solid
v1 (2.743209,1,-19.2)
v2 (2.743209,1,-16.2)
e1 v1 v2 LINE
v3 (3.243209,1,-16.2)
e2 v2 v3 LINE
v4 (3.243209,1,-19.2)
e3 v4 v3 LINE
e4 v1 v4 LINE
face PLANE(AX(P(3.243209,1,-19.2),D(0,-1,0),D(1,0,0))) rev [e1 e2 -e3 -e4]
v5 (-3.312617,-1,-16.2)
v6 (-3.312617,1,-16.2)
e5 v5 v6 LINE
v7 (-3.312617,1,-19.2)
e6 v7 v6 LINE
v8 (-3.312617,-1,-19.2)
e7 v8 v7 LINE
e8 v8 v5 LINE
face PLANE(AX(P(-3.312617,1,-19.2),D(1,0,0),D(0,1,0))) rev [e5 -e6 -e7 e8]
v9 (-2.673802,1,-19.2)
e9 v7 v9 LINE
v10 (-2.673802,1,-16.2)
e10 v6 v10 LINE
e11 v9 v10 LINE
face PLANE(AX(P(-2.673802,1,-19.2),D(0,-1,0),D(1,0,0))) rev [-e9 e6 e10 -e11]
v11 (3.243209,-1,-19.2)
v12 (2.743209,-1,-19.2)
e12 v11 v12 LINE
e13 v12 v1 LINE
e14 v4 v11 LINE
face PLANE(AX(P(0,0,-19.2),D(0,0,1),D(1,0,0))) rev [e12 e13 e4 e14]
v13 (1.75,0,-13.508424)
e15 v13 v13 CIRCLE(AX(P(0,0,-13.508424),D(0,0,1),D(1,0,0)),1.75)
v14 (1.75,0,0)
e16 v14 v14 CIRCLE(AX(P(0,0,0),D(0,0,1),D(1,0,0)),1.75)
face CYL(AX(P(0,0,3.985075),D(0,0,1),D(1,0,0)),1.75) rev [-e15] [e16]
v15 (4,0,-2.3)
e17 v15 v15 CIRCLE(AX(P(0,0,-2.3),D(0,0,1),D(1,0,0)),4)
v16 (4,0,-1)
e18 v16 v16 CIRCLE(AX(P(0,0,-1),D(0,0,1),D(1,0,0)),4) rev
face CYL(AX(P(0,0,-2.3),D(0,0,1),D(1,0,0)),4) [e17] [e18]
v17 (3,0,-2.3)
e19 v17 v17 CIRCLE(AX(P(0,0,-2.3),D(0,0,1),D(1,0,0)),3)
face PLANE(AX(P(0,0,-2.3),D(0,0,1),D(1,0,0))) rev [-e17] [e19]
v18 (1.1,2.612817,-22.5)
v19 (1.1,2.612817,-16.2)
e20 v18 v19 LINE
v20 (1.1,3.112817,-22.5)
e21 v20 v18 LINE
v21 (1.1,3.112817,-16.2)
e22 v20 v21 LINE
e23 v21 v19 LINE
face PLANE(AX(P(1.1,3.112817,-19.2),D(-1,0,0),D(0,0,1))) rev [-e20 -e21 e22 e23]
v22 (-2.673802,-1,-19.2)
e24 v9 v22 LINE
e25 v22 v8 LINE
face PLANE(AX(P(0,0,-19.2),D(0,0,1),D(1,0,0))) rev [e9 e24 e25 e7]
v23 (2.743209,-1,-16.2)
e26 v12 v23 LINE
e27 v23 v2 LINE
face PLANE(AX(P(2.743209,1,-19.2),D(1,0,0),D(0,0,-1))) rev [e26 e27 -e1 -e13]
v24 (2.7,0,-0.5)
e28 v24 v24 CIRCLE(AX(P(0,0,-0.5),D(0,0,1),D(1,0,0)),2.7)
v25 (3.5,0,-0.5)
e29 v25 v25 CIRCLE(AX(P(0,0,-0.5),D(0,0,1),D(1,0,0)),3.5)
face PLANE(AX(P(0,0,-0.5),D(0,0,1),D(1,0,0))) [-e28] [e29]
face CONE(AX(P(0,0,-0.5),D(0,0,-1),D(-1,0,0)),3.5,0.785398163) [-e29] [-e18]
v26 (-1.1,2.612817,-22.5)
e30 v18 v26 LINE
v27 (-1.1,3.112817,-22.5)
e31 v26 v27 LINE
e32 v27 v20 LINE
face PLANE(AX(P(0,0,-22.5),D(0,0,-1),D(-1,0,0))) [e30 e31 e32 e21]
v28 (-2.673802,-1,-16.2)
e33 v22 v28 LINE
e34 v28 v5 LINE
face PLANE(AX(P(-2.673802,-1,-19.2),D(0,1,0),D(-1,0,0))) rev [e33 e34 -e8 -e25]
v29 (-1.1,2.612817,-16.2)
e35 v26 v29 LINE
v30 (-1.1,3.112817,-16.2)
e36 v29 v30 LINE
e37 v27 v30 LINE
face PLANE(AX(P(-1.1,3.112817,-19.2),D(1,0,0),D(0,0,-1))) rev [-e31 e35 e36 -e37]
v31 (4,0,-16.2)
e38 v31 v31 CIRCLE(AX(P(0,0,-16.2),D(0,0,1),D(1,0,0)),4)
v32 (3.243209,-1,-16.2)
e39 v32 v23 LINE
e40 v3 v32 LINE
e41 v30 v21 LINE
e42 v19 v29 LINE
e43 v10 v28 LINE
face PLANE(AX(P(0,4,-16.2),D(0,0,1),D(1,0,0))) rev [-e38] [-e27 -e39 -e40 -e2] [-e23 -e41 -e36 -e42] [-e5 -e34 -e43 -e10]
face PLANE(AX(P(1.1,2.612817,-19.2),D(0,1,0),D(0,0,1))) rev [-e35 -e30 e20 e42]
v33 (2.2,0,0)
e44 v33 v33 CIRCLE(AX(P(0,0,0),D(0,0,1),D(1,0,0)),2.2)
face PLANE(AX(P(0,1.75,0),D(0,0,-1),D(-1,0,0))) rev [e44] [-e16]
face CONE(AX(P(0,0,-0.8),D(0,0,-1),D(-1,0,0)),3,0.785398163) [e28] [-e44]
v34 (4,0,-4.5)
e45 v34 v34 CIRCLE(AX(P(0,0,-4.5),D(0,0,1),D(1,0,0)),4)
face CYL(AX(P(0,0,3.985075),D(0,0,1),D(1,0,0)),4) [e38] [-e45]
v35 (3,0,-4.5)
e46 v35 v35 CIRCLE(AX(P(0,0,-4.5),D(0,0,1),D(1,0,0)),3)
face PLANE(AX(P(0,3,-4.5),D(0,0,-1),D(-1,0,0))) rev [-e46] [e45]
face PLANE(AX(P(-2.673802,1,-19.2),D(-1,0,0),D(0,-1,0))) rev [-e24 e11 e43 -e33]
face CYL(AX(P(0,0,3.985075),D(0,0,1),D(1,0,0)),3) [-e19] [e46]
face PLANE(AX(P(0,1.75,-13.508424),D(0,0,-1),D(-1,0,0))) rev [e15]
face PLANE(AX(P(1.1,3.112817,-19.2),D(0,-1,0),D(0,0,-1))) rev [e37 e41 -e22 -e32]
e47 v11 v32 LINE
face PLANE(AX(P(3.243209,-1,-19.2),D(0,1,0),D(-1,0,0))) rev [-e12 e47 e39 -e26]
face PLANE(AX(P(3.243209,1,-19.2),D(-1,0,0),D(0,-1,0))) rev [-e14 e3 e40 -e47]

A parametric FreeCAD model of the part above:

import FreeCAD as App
import Part
import Sketcher
from FreeCAD import Vector
Q = App.Units.Quantity


def edges_at(feature, points):
    """Names of the edges that pass closest to the given points."""
    edges = feature.Shape.Edges
    near = lambda p: min(range(len(edges)), key=lambda i: edges[i].distToShape(Part.Vertex(*p))[0])
    return sorted({f"Edge{near(p) + 1}" for p in points})

doc = App.newDocument("Part")
body = doc.addObject("PartDesign::Body", "Body")

sketch1 = body.newObject("Sketcher::SketchObject", "Sketch")
sketch1.AttachmentSupport = (doc.getObject("YZ_Plane"), [""])
sketch1.MapMode = "FlatFace"
sketch1.addGeometry([
    Part.LineSegment(Vector(2.2, 0, 0), Vector(1.75, 0, 0)),
    Part.LineSegment(Vector(1.75, 0, 0), Vector(1.75, -13.51, 0)),
    Part.LineSegment(Vector(1.75, -13.51, 0), Vector(0, -13.51, 0)),
    Part.LineSegment(Vector(0, -13.51, 0), Vector(0, -16.2, 0)),
    Part.LineSegment(Vector(0, -16.2, 0), Vector(4, -16.2, 0)),
    Part.LineSegment(Vector(4, -16.2, 0), Vector(4, -4.5, 0)),
    Part.LineSegment(Vector(4, -4.5, 0), Vector(3, -4.5, 0)),
    Part.LineSegment(Vector(3, -4.5, 0), Vector(3, -0.8, 0)),
    Part.LineSegment(Vector(3, -0.8, 0), Vector(2.2, 0, 0)),
], False)
sketch1.addConstraint([
    Sketcher.Constraint("Coincident", 0, 2, 1, 1),
    Sketcher.Constraint("Coincident", 1, 2, 2, 1),
    Sketcher.Constraint("Coincident", 2, 2, 3, 1),
    Sketcher.Constraint("Coincident", 3, 2, 4, 1),
    Sketcher.Constraint("Coincident", 4, 2, 5, 1),
    Sketcher.Constraint("Coincident", 5, 2, 6, 1),
    Sketcher.Constraint("Coincident", 6, 2, 7, 1),
    Sketcher.Constraint("Coincident", 7, 2, 8, 1),
    Sketcher.Constraint("Coincident", 8, 2, 0, 1),
    Sketcher.Constraint("Horizontal", 0),
    Sketcher.Constraint("Vertical", 1),
    Sketcher.Constraint("Horizontal", 2),
    Sketcher.Constraint("Vertical", 3),
    Sketcher.Constraint("Horizontal", 4),
    Sketcher.Constraint("Vertical", 5),
    Sketcher.Constraint("Horizontal", 6),
    Sketcher.Constraint("Vertical", 7),
    Sketcher.Constraint("PointOnObject", 0, 2, -1),
    Sketcher.Constraint("PointOnObject", 2, 2, -2),
    Sketcher.Constraint("DistanceX", 4, 1, 4, 2, Q("4 mm")),
    Sketcher.Constraint("DistanceX", 6, 2, 6, 1, Q("1 mm")),
    Sketcher.Constraint("Angle", 8, Q("135 deg")),
    Sketcher.Constraint("DistanceY", 5, 1, 5, 2, Q("11.7 mm")),
    Sketcher.Constraint("DistanceY", 7, 1, 7, 2, Q("3.7 mm")),
    Sketcher.Constraint("DistanceX", 0, 2, 0, 1, Q("0.45 mm")),
    Sketcher.Constraint("DistanceX", 2, 2, 2, 1, Q("1.75 mm")),
    Sketcher.Constraint("DistanceY", 1, 2, 1, 1, Q("13.508424 mm")),
])
revolution = body.newObject("PartDesign::Revolution", "Revolution")
revolution.Profile = sketch1
revolution.ReferenceAxis = (sketch1, ["V_Axis"])
revolution.Angle = 360

sketch2 = body.newObject("Sketcher::SketchObject", "Sketch001")
sketch2.AttachmentSupport = (doc.getObject("XY_Plane"), [""])
sketch2.MapMode = "FlatFace"
sketch2.AttachmentOffset = App.Placement(Vector(0, 0, -2.3), App.Rotation())
sketch2.addGeometry([
    Part.Circle(Vector(0, 0, 0), Vector(0, 0, 1), 4),
    Part.Circle(Vector(0, 0, 0), Vector(0, 0, 1), 2.6),
], False)
sketch2.addConstraint([
    Sketcher.Constraint("Coincident", 0, 3, -1, 1),
    Sketcher.Constraint("Coincident", 1, 3, -1, 1),
    Sketcher.Constraint("Diameter", 0, Q("8 mm")),
    Sketcher.Constraint("Diameter", 1, Q("5.2 mm")),
])
pad1 = body.newObject("PartDesign::Pad", "Pad")
pad1.Profile = sketch2
pad1.Length = 1.8
doc.recompute()

chamfer = body.newObject("PartDesign::Chamfer", "Chamfer")
chamfer.Base = (pad1, edges_at(pad1, [(-4, 0, -0.5)]))
chamfer.Size = 0.5

sketch3 = body.newObject("Sketcher::SketchObject", "Sketch002")
sketch3.AttachmentSupport = (doc.getObject("XY_Plane"), [""])
sketch3.MapMode = "FlatFace"
sketch3.AttachmentOffset = App.Placement(Vector(0, 0, -16.2), App.Rotation())
sketch3.addGeometry([
    Part.LineSegment(Vector(3.2, 1, 0), Vector(3.2, -1, 0)),
    Part.LineSegment(Vector(3.2, -1, 0), Vector(2.7, -1, 0)),
    Part.LineSegment(Vector(2.7, -1, 0), Vector(2.7, 1, 0)),
    Part.LineSegment(Vector(2.7, 1, 0), Vector(3.2, 1, 0)),
    Part.LineSegment(Vector(1.1, 3.1, 0), Vector(1.1, 2.6, 0)),
    Part.LineSegment(Vector(1.1, 2.6, 0), Vector(-1.1, 2.6, 0)),
    Part.LineSegment(Vector(-1.1, 2.6, 0), Vector(-1.1, 3.1, 0)),
    Part.LineSegment(Vector(-1.1, 3.1, 0), Vector(1.1, 3.1, 0)),
    Part.LineSegment(Vector(-2.7, 1, 0), Vector(-2.7, -1, 0)),
    Part.LineSegment(Vector(-2.7, -1, 0), Vector(-3.3, -1, 0)),
    Part.LineSegment(Vector(-3.3, -1, 0), Vector(-3.3, 1, 0)),
    Part.LineSegment(Vector(-3.3, 1, 0), Vector(-2.7, 1, 0)),
], False)
sketch3.addConstraint([
    Sketcher.Constraint("Coincident", 0, 2, 1, 1),
    Sketcher.Constraint("Coincident", 1, 2, 2, 1),
    Sketcher.Constraint("Coincident", 2, 2, 3, 1),
    Sketcher.Constraint("Coincident", 3, 2, 0, 1),
    Sketcher.Constraint("Coincident", 4, 2, 5, 1),
    Sketcher.Constraint("Coincident", 5, 2, 6, 1),
    Sketcher.Constraint("Coincident", 6, 2, 7, 1),
    Sketcher.Constraint("Coincident", 7, 2, 4, 1),
    Sketcher.Constraint("Coincident", 8, 2, 9, 1),
    Sketcher.Constraint("Coincident", 9, 2, 10, 1),
    Sketcher.Constraint("Coincident", 10, 2, 11, 1),
    Sketcher.Constraint("Coincident", 11, 2, 8, 1),
    Sketcher.Constraint("Vertical", 0),
    Sketcher.Constraint("Horizontal", 1),
    Sketcher.Constraint("Vertical", 2),
    Sketcher.Constraint("Horizontal", 3),
    Sketcher.Constraint("Vertical", 4),
    Sketcher.Constraint("Horizontal", 5),
    Sketcher.Constraint("Vertical", 6),
    Sketcher.Constraint("Horizontal", 7),
    Sketcher.Constraint("Vertical", 8),
    Sketcher.Constraint("Horizontal", 9),
    Sketcher.Constraint("Vertical", 10),
    Sketcher.Constraint("Horizontal", 11),
    Sketcher.Constraint("Horizontal", 1, 2, 8, 2),
    Sketcher.Constraint("Horizontal", 3, 2, 10, 2),
    Sketcher.Constraint("Equal", 3, 4),
    Sketcher.Constraint("DistanceY", 0, 2, 0, 1, Q("2 mm")),
    Sketcher.Constraint("DistanceX", 1, 2, 1, 1, Q("0.5 mm")),
    Sketcher.Constraint("DistanceX", 5, 2, 5, 1, Q("2.2 mm")),
    Sketcher.Constraint("DistanceY", 0, 2, -1, 1, Q("1 mm")),
    Sketcher.Constraint("DistanceX", -1, 1, 4, 2, Q("1.1 mm")),
    Sketcher.Constraint("DistanceX", 8, 2, -1, 1, Q("2.673802 mm")),
    Sketcher.Constraint("DistanceX", 9, 2, 9, 1, Q("0.638815 mm")),
    Sketcher.Constraint("DistanceX", -1, 1, 0, 2, Q("3.243209 mm")),
    Sketcher.Constraint("DistanceY", -1, 1, 4, 2, Q("2.612817 mm")),
])
pad2 = body.newObject("PartDesign::Pad", "Pad001")
pad2.Profile = sketch3
pad2.Length = 3
pad2.Reversed = True

sketch4 = body.newObject("Sketcher::SketchObject", "Sketch003")
sketch4.AttachmentSupport = (doc.getObject("XY_Plane"), [""])
sketch4.MapMode = "FlatFace"
sketch4.AttachmentOffset = App.Placement(Vector(0, 0, -19.2), App.Rotation())
sketch4.addGeometry([
    Part.LineSegment(Vector(1.1, 3.1, 0), Vector(1.1, 2.6, 0)),
    Part.LineSegment(Vector(1.1, 2.6, 0), Vector(-1.1, 2.6, 0)),
    Part.LineSegment(Vector(-1.1, 2.6, 0), Vector(-1.1, 3.1, 0)),
    Part.LineSegment(Vector(-1.1, 3.1, 0), Vector(1.1, 3.1, 0)),
], False)
sketch4.addConstraint([
    Sketcher.Constraint("Coincident", 0, 2, 1, 1),
    Sketcher.Constraint("Coincident", 1, 2, 2, 1),
    Sketcher.Constraint("Coincident", 2, 2, 3, 1),
    Sketcher.Constraint("Coincident", 3, 2, 0, 1),
    Sketcher.Constraint("Vertical", 0),
    Sketcher.Constraint("Horizontal", 1),
    Sketcher.Constraint("Vertical", 2),
    Sketcher.Constraint("Horizontal", 3),
    Sketcher.Constraint("DistanceX", 1, 2, 1, 1, Q("2.2 mm")),
    Sketcher.Constraint("DistanceY", 0, 2, 0, 1, Q("0.5 mm")),
    Sketcher.Constraint("DistanceX", -1, 1, 0, 2, Q("1.1 mm")),
    Sketcher.Constraint("DistanceY", -1, 1, 0, 2, Q("2.612817 mm")),
])
pad3 = body.newObject("PartDesign::Pad", "Pad002")
pad3.Profile = sketch4
pad3.Length = 3.3
pad3.Reversed = True

doc.recompute()
